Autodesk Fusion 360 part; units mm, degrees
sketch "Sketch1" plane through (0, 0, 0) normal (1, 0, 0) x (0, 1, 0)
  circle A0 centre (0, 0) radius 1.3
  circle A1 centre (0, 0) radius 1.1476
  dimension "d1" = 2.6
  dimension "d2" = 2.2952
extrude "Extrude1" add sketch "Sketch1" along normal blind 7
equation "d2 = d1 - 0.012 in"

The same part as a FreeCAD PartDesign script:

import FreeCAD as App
import Part
import Sketcher
Q = App.Units.Quantity

doc = App.newDocument("Part")
body = doc.addObject("PartDesign::Body", "Body")

sketch1 = doc.addObject("Sketcher::SketchObject", "Sketch")
body.addObject(sketch1)
sketch1.AttachmentSupport = (doc.YZ_Plane, [""])
sketch1.MapMode = "FlatFace"
sketch1.addGeometry([
    Part.Circle(App.Vector(0, 0, 0), App.Vector(0, 0, 1), 1.3),
    Part.Circle(App.Vector(0, 0, 0), App.Vector(0, 0, 1), 1.1),
], False)
sketch1.addConstraint([
    Sketcher.Constraint("Coincident", 0, 3, -1, 1),
    Sketcher.Constraint("Coincident", 1, 3, -1, 1),
    Sketcher.Constraint("Diameter", 0, Q("2.6 mm")),
    Sketcher.Constraint("Diameter", 1, Q("2.2952 mm")),
])
pad1 = doc.addObject("PartDesign::Pad", "Pad")
body.addObject(pad1)
pad1.Profile = sketch1
pad1.Length = 7

doc.recompute()
